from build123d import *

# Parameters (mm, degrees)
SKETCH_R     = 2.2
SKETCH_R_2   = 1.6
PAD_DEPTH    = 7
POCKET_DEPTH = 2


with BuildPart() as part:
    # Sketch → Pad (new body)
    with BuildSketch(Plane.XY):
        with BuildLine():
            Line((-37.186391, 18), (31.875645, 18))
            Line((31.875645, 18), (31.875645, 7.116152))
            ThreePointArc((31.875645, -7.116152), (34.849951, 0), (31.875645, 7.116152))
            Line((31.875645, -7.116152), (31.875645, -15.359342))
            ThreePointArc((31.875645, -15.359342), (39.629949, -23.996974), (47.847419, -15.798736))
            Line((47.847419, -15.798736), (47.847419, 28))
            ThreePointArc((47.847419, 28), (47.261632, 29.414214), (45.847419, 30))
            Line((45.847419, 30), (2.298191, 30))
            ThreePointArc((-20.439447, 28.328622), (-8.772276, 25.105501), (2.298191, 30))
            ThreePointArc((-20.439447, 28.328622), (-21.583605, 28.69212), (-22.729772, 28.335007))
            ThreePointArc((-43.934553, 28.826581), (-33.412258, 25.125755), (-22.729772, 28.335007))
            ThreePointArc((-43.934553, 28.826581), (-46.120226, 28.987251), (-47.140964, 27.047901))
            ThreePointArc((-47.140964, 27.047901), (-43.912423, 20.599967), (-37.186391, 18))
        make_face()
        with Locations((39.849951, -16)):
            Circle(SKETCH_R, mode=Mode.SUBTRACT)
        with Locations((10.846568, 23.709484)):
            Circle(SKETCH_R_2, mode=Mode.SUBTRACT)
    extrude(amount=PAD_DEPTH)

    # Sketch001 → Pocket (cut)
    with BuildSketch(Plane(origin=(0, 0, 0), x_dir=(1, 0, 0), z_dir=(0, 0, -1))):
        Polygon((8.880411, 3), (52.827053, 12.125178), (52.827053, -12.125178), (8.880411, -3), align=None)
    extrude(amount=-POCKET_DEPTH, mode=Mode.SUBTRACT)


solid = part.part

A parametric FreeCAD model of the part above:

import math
import FreeCAD as App
import Part
import Sketcher
Q = App.Units.Quantity

doc = App.newDocument("Part")
body = doc.addObject("PartDesign::Body", "Body")

sketch1 = doc.addObject("Sketcher::SketchObject", "Sketch")
body.addObject(sketch1)
sketch1.AttachmentSupport = (doc.XY_Plane, [""])
sketch1.MapMode = "FlatFace"
sketch1.addGeometry(Part.LineSegment(App.Vector(-37.2, 18, 0), App.Vector(31.9, 18, 0)), False)
sketch1.addGeometry(Part.LineSegment(App.Vector(31.9, 18, 0), App.Vector(31.9, 7.1, 0)), False)
sketch1.addGeometry(Part.ArcOfCircle(Part.Circle(App.Vector(24.8, 0, 0), App.Vector(0, 0, 1), 10), math.radians(-45), math.radians(45)), False)
sketch1.addGeometry(Part.LineSegment(App.Vector(31.9, -7.1, 0), App.Vector(31.9, -15.4, 0)), False)
sketch1.addGeometry(Part.ArcOfCircle(Part.Circle(App.Vector(39.8, -16, 0), App.Vector(0, 0, 1), 8), math.radians(175), math.radians(361)), False)
sketch1.addGeometry(Part.LineSegment(App.Vector(47.8, -15.8, 0), App.Vector(47.8, 28, 0)), False)
sketch1.addGeometry(Part.ArcOfCircle(Part.Circle(App.Vector(45.8, 28, 0), App.Vector(0, 0, 1), 2), math.radians(0), math.radians(90)), False)
sketch1.addGeometry(Part.LineSegment(App.Vector(45.8, 30, 0), App.Vector(2.3, 30, 0)), False)
sketch1.addGeometry(Part.ArcOfCircle(Part.Circle(App.Vector(-10.1, 43.1, 0), App.Vector(0, 0, 1), 18), math.radians(-125), math.radians(-47)), False)
sketch1.addGeometry(Part.ArcOfCircle(Part.Circle(App.Vector(-21.6, 26.7, 0), App.Vector(0, 0, 1), 2), math.radians(55), math.radians(125)), False)
sketch1.addGeometry(Part.ArcOfCircle(Part.Circle(App.Vector(-33, 43.1, 0), App.Vector(0, 0, 1), 18), math.radians(-127), math.radians(-55)), False)
sketch1.addGeometry(Part.ArcOfCircle(Part.Circle(App.Vector(-45.2, 27.2, 0), App.Vector(0, 0, 1), 2), math.radians(53), math.radians(185)), False)
sketch1.addGeometry(Part.ArcOfCircle(Part.Circle(App.Vector(-37.2, 28, 0), App.Vector(0, 0, 1), 10), math.radians(-175), math.radians(-90)), False)
sketch1.addGeometry(Part.Circle(App.Vector(39.8, -16, 0), App.Vector(0, 0, 1), 2.2), False)
sketch1.addGeometry(Part.Circle(App.Vector(10.8, 23.7, 0), App.Vector(0, 0, 1), 1.6), False)
sketch1.addConstraint(Sketcher.Constraint("Coincident", 0, 2, 1, 1))
sketch1.addConstraint(Sketcher.Constraint("Coincident", 1, 2, 2, 2))
sketch1.addConstraint(Sketcher.Constraint("Coincident", 2, 1, 3, 1))
sketch1.addConstraint(Sketcher.Constraint("Coincident", 3, 2, 4, 1))
sketch1.addConstraint(Sketcher.Constraint("Coincident", 4, 2, 5, 1))
sketch1.addConstraint(Sketcher.Constraint("Tangent", 5, 2, 6, 1))
sketch1.addConstraint(Sketcher.Constraint("Tangent", 6, 2, 7, 1))
sketch1.addConstraint(Sketcher.Constraint("Coincident", 7, 2, 8, 2))
sketch1.addConstraint(Sketcher.Constraint("Tangent", 8, 1, 9, 1))
sketch1.addConstraint(Sketcher.Constraint("Tangent", 9, 2, 10, 2))
sketch1.addConstraint(Sketcher.Constraint("Tangent", 10, 1, 11, 1))
sketch1.addConstraint(Sketcher.Constraint("Tangent", 11, 2, 12, 1))
sketch1.addConstraint(Sketcher.Constraint("Tangent", 12, 2, 0, 1))
sketch1.addConstraint(Sketcher.Constraint("Horizontal", 0))
sketch1.addConstraint(Sketcher.Constraint("Vertical", 1))
sketch1.addConstraint(Sketcher.Constraint("Vertical", 3))
sketch1.addConstraint(Sketcher.Constraint("Vertical", 5))
sketch1.addConstraint(Sketcher.Constraint("Horizontal", 7))
sketch1.addConstraint(Sketcher.Constraint("Coincident", 13, 3, 4, 3))
sketch1.addConstraint(Sketcher.Constraint("Equal", 6, 9))
sketch1.addConstraint(Sketcher.Constraint("Equal", 8, 10))
sketch1.addConstraint(Sketcher.Constraint("Equal", 9, 11))
sketch1.addConstraint(Sketcher.Constraint("Symmetric", 1, 2, 2, 1, -1))
sketch1.addConstraint(Sketcher.Constraint("Radius", 2, Q("9.999999 mm")))
sketch1.addConstraint(Sketcher.Constraint("Radius", 4, Q("8 mm")))
sketch1.addConstraint(Sketcher.Constraint("Radius", 6, Q("2 mm")))
sketch1.addConstraint(Sketcher.Constraint("Radius", 8, Q("17.999998 mm")))
sketch1.addConstraint(Sketcher.Constraint("Diameter", 13, Q("4.4 mm")))
sketch1.addConstraint(Sketcher.Constraint("Diameter", 14, Q("3.2 mm")))
sketch1.addConstraint(Sketcher.Constraint("DistanceY", 4, 3, -1, 1, Q("16 mm")))
sketch1.addConstraint(Sketcher.Constraint("DistanceY", -1, 1, 6, 3, Q("28 mm")))
sketch1.addConstraint(Sketcher.Constraint("DistanceY", -1, 1, 0, 2, Q("18 mm")))
sketch1.addConstraint(Sketcher.Constraint("DistanceX", 2, 3, 4, 3, Q("14.999999 mm")))
sketch1.addConstraint(Sketcher.Constraint("DistanceX", 11, 3, 2, 3, Q("70.000001 mm")))
sketch1.addConstraint(Sketcher.Constraint("Radius", 12, Q("10.000002 mm")))
sketch1.addConstraint(Sketcher.Constraint("DistanceY", 3, 2, 3, 1, Q("8.24319 mm")))
sketch1.addConstraint(Sketcher.Constraint("DistanceY", -1, 1, 11, 2, Q("27.047901 mm")))
sketch1.addConstraint(Sketcher.Constraint("DistanceX", 9, 3, 6, 3, Q("67.436599 mm")))
sketch1.addConstraint(Sketcher.Constraint("DistanceX", 12, 3, 10, 3, Q("4.1913 mm")))
sketch1.addConstraint(Sketcher.Constraint("DistanceX", 7, 2, 7, 1, Q("43.549228 mm")))
sketch1.addConstraint(Sketcher.Constraint("DistanceY", 5, 1, 5, 2, Q("43.798736 mm")))
sketch1.addConstraint(Sketcher.Constraint("DistanceX", -1, 1, 2, 3, Q("24.849952 mm")))
sketch1.addConstraint(Sketcher.Constraint("DistanceY", 14, 3, 8, 3, Q("19.347582 mm")))
sketch1.addConstraint(Sketcher.Constraint("DistanceX", 9, 3, 14, 3, Q("32.435749 mm")))
pad1 = doc.addObject("PartDesign::Pad", "Pad")
body.addObject(pad1)
pad1.Profile = sketch1
pad1.Length = 7

sketch2 = doc.addObject("Sketcher::SketchObject", "Sketch001")
body.addObject(sketch2)
sketch2.AttachmentSupport = (doc.XY_Plane, [""])
sketch2.MapMode = "FlatFace"
sketch2.addGeometry(Part.LineSegment(App.Vector(53, -12, 0), App.Vector(9, -3, 0)), False)
sketch2.addGeometry(Part.LineSegment(App.Vector(9, -3, 0), App.Vector(9, 3, 0)), False)
sketch2.addGeometry(Part.LineSegment(App.Vector(9, 3, 0), App.Vector(53, 12, 0)), False)
sketch2.addGeometry(Part.LineSegment(App.Vector(53, 12, 0), App.Vector(53, -12, 0)), False)
sketch2.addConstraint(Sketcher.Constraint("Coincident", 0, 2, 1, 1))
sketch2.addConstraint(Sketcher.Constraint("Coincident", 1, 2, 2, 1))
sketch2.addConstraint(Sketcher.Constraint("Coincident", 2, 2, 3, 1))
sketch2.addConstraint(Sketcher.Constraint("Coincident", 3, 2, 0, 1))
sketch2.addConstraint(Sketcher.Constraint("Vertical", 1))
sketch2.addConstraint(Sketcher.Constraint("Vertical", 3))
sketch2.addConstraint(Sketcher.Constraint("Equal", 0, 2))
sketch2.addConstraint(Sketcher.Constraint("DistanceY", 1, 1, 1, 2, Q("6 mm")))
sketch2.addConstraint(Sketcher.Constraint("DistanceY", 0, 2, -1, 1, Q("3 mm")))
sketch2.addConstraint(Sketcher.Constraint("Distance", 0, Q("44.884031 mm")))
sketch2.addConstraint(Sketcher.Constraint("DistanceY", 3, 2, 3, 1, Q("24.250356 mm")))
sketch2.addConstraint(Sketcher.Constraint("DistanceX", -1, 1, 0, 2, Q("8.880411 mm")))
pocket1 = doc.addObject("PartDesign::Pocket", "Pocket")
body.addObject(pocket1)
pocket1.Profile = sketch2
pocket1.Length = 2
pocket1.Reversed = True

doc.recompute()
